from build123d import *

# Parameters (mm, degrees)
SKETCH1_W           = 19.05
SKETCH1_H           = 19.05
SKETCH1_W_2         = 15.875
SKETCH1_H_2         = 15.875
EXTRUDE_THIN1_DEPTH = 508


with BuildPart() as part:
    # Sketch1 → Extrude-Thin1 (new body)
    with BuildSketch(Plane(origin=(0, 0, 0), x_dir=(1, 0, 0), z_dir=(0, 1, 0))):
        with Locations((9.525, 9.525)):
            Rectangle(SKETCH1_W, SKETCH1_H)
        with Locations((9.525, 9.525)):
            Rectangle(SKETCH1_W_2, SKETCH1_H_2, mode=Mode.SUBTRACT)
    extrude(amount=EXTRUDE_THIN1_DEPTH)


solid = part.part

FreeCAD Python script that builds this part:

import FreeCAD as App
import Part
import Sketcher

V = App.Vector
Q = App.Units.Quantity


def add_polygon(sketch, points):
    """Adds a closed chain of lines whose ends are joined by coincident constraints."""
    first, n = sketch.GeometryCount, len(points)
    for a, b in zip(points, points[1:] + points[:1]):
        sketch.addGeometry(Part.LineSegment(App.Vector(*a, 0), App.Vector(*b, 0)), False)
    for i in range(n):
        sketch.addConstraint(Sketcher.Constraint("Coincident", first + i, 2, first + (i + 1) % n, 1))

doc = App.newDocument("Part")
params = doc.addObject("Spreadsheet::Sheet", "Params")
for row, (alias, value) in enumerate([
    ("sketch1_width", "0.75 in"),
    ("sketch1_width2", "0.625 in"),
    ("pad1_length", "20 in"),
], start=1):
    params.set(f"A{row}", alias)
    params.set(f"B{row}", "=" + value)
    params.setAlias(f"B{row}", alias)

body = doc.addObject("PartDesign::Body", "Body")

sketch1 = body.newObject("Sketcher::SketchObject", "Sketch")
sketch1.AttachmentSupport = (doc.getObject("XZ_Plane"), [""])
sketch1.MapMode = "FlatFace"
add_polygon(sketch1, [(0, -19.05), (0, 0), (19.05, 0), (19.05, -19.05)])
add_polygon(sketch1, [(17.4625, -1.5875), (1.5875, -1.5875), (1.5875, -17.4625), (17.4625, -17.4625)])
sketch1.addConstraint([
    Sketcher.Constraint("Vertical", 0),
    Sketcher.Constraint("Horizontal", 1),
    Sketcher.Constraint("Vertical", 2),
    Sketcher.Constraint("Horizontal", 3),
    Sketcher.Constraint("Horizontal", 4),
    Sketcher.Constraint("Vertical", 5),
    Sketcher.Constraint("Horizontal", 6),
    Sketcher.Constraint("Vertical", 7),
    Sketcher.Constraint("Coincident", 0, 2, -1, 1),
    Sketcher.Constraint("Equal", 3, 0),
    Sketcher.Constraint("Equal", 6, 5),
    Sketcher.Constraint("DistanceX", 1, 1, 1, 2, Q("0.75 in")),
    Sketcher.Constraint("DistanceX", 4, 2, 4, 1, Q("0.625 in")),
    Sketcher.Constraint("DistanceX", -1, 1, 4, 2, Q("0.0625 in")),
    Sketcher.Constraint("DistanceY", 4, 2, -1, 1, Q("0.0625 in")),
])
sketch1.setExpression("Constraints[19]", "Params.sketch1_width")
sketch1.setExpression("Constraints[20]", "Params.sketch1_width2")
pad1 = body.newObject("PartDesign::Pad", "Pad")
pad1.Profile = sketch1
pad1.setExpression("Length", "Params.pad1_length")
pad1.Reversed = True

doc.recompute()
